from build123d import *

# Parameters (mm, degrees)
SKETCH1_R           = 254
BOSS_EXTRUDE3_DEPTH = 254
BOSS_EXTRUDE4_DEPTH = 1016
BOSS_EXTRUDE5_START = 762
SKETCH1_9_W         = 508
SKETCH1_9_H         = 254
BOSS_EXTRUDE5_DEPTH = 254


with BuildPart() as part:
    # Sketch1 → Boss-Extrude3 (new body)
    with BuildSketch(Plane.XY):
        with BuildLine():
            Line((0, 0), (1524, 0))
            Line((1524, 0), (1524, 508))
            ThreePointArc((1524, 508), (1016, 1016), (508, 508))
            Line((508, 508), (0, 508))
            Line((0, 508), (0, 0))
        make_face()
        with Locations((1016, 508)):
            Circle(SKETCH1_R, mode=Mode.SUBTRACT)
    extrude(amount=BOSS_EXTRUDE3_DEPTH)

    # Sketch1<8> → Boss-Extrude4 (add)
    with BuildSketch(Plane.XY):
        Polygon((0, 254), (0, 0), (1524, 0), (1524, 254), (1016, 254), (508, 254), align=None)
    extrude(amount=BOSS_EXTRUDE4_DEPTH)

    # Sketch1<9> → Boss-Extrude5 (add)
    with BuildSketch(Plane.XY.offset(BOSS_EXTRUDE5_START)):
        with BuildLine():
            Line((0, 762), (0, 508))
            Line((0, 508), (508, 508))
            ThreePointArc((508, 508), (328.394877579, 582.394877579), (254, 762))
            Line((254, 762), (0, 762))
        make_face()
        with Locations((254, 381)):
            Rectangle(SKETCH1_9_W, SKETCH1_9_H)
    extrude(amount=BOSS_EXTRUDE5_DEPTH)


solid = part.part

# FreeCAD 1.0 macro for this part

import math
import FreeCAD as App
import Part
import Sketcher

V = App.Vector
Q = App.Units.Quantity


def add_polygon(sketch, points):
    """Adds a closed chain of lines whose ends are joined by coincident constraints."""
    first, n = sketch.GeometryCount, len(points)
    for a, b in zip(points, points[1:] + points[:1]):
        sketch.addGeometry(Part.LineSegment(App.Vector(*a, 0), App.Vector(*b, 0)), False)
    for i in range(n):
        sketch.addConstraint(Sketcher.Constraint("Coincident", first + i, 2, first + (i + 1) % n, 1))

doc = App.newDocument("Part")
body = doc.addObject("PartDesign::Body", "Body")

# Sketch on XY plane
sketch1 = body.newObject("Sketcher::SketchObject", "Sketch")
sketch1.AttachmentSupport = (doc.getObject("XY_Plane"), [""])
sketch1.MapMode = "FlatFace"
sketch1.addGeometry([
    Part.LineSegment(V(0, 0, 0), V(1524, 0, 0)),  # 0
    Part.LineSegment(V(1524, 0, 0), V(1524, 508, 0)),  # 1
    Part.ArcOfCircle(Part.Circle(V(1016, 508, 0), V(0, 0, 1), 508), math.radians(0), math.radians(180)),  # 2
    Part.LineSegment(V(508, 508, 0), V(0, 508, 0)),  # 3
    Part.LineSegment(V(0, 508, 0), V(0, 0, 0)),  # 4
    Part.Circle(V(1016, 508, 0), V(0, 0, 1), 254),  # 5
], False)
sketch1.addConstraint([
    Sketcher.Constraint("Coincident", 0, 2, 1, 1),
    Sketcher.Constraint("Tangent", 1, 2, 2, 1),
    Sketcher.Constraint("Coincident", 2, 2, 3, 1),
    Sketcher.Constraint("Coincident", 3, 2, 4, 1),
    Sketcher.Constraint("Coincident", 4, 2, 0, 1),
    Sketcher.Constraint("Horizontal", 0),
    Sketcher.Constraint("Vertical", 1),
    Sketcher.Constraint("Horizontal", 3),
    Sketcher.Constraint("Vertical", 4),
    Sketcher.Constraint("Coincident", 4, 2, -1, 1),
    Sketcher.Constraint("Coincident", 5, 3, 2, 3),
    Sketcher.Constraint("Equal", 3, 1),
    Sketcher.Constraint("Equal", 1, 4),
    Sketcher.Constraint("Diameter", 5, Q("20 in")),
    Sketcher.Constraint("Radius", 2, Q("20 in")),
    Sketcher.Constraint("DistanceX", 0, 1, 0, 2, Q("60 in")),
])
pad1 = body.newObject("PartDesign::Pad", "Pad")
pad1.Profile = sketch1
pad1.Length = Q("10 in")

# Sketch on XY plane
sketch2 = body.newObject("Sketcher::SketchObject", "Sketch001")
sketch2.AttachmentSupport = (doc.getObject("XY_Plane"), [""])
sketch2.MapMode = "FlatFace"
add_polygon(sketch2, [(0, 254), (0, 0), (1524, 0), (1524, 254)])  # lines 0-3
sketch2.addConstraint([
    Sketcher.Constraint("Vertical", 0),
    Sketcher.Constraint("Horizontal", 1),
    Sketcher.Constraint("Vertical", 2),
    Sketcher.Constraint("Horizontal", 3),
    Sketcher.Constraint("Coincident", 0, 2, -1, 1),
    Sketcher.Constraint("DistanceX", 1, 1, 1, 2, Q("60 in")),
    Sketcher.Constraint("DistanceY", 0, 2, 0, 1, Q("10 in")),
])
pad2 = body.newObject("PartDesign::Pad", "Pad001")
pad2.Profile = sketch2
pad2.Length = Q("40 in")

# Sketch on XY plane
sketch3 = body.newObject("Sketcher::SketchObject", "Sketch002")
sketch3.AttachmentSupport = (doc.getObject("XY_Plane"), [""])
sketch3.MapMode = "FlatFace"
sketch3.AttachmentOffset = App.Placement(V(0, 0, 30 * 25.4), App.Rotation())
sketch3.addGeometry([
    Part.LineSegment(V(0, 762, 0), V(0, 254, 0)),  # 0
    Part.LineSegment(V(0, 254, 0), V(508, 254, 0)),  # 1
    Part.LineSegment(V(508, 254, 0), V(508, 508, 0)),  # 2
    Part.ArcOfCircle(Part.Circle(V(508, 762, 0), V(0, 0, 1), 254), math.radians(-180), math.radians(-90)),  # 3
    Part.LineSegment(V(254, 762, 0), V(0, 762, 0)),  # 4
], False)
sketch3.addConstraint([
    Sketcher.Constraint("Coincident", 0, 2, 1, 1),
    Sketcher.Constraint("Coincident", 1, 2, 2, 1),
    Sketcher.Constraint("Coincident", 2, 2, 3, 2),
    Sketcher.Constraint("Coincident", 3, 1, 4, 1),
    Sketcher.Constraint("Coincident", 4, 2, 0, 1),
    Sketcher.Constraint("Vertical", 0),
    Sketcher.Constraint("Horizontal", 1),
    Sketcher.Constraint("Vertical", 2),
    Sketcher.Constraint("Horizontal", 4),
    Sketcher.Constraint("PointOnObject", 0, 2, -2),
    Sketcher.Constraint("Vertical", 3, 3, 1, 2),
    Sketcher.Constraint("Equal", 1, 0),
    Sketcher.Constraint("Equal", 4, 2),
    Sketcher.Constraint("Radius", 3, Q("10 in")),
    Sketcher.Constraint("DistanceX", 1, 1, 1, 2, Q("20 in")),
    Sketcher.Constraint("DistanceY", -1, 1, 3, 3, Q("30 in")),
])
pad3 = body.newObject("PartDesign::Pad", "Pad002")
pad3.Profile = sketch3
pad3.Length = Q("10 in")

doc.recompute()
